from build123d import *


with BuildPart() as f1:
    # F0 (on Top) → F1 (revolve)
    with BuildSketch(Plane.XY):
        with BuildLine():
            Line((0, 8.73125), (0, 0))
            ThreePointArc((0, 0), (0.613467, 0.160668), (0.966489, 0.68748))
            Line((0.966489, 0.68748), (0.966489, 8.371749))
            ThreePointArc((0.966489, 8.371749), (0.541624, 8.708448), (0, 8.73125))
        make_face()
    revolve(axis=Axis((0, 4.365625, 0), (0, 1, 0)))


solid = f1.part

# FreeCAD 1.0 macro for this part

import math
import FreeCAD as App
import Part
import Sketcher
from FreeCAD import Vector
Q = App.Units.Quantity

doc = App.newDocument("Part")
body = doc.addObject("PartDesign::Body", "Body")

# Sketch on XY plane
sketch1 = doc.addObject("Sketcher::SketchObject", "Sketch")
body.addObject(sketch1)
sketch1.AttachmentSupport = (doc.XY_Plane, [""])
sketch1.MapMode = "FlatFace"
sketch1.addGeometry(Part.LineSegment(Vector(0, 8.73125, 0), Vector(0, 0, 0)), False)
sketch1.addGeometry(Part.ArcOfCircle(Part.Circle(Vector(0.094681, 0.89, 0), Vector(0, 0, 1), 0.895022), math.radians(-96.072453), math.radians(-13.077773)), False)
sketch1.addGeometry(Part.LineSegment(Vector(0.966489, 0.68748, 0), Vector(0.966489, 8.371749, 0)), False)
sketch1.addGeometry(Part.ArcOfCircle(Part.Circle(Vector(0.235708, 7.886019, 0), Vector(0, 0, 1), 0.877482), math.radians(33.610917), math.radians(105.582108)), False)
sketch1.addConstraint(Sketcher.Constraint("Coincident", 0, 2, 1, 1))
sketch1.addConstraint(Sketcher.Constraint("Coincident", 1, 2, 2, 1))
sketch1.addConstraint(Sketcher.Constraint("Coincident", 2, 2, 3, 1))
sketch1.addConstraint(Sketcher.Constraint("Coincident", 3, 2, 0, 1))
sketch1.addConstraint(Sketcher.Constraint("Vertical", 0))
sketch1.addConstraint(Sketcher.Constraint("Vertical", 2))
sketch1.addConstraint(Sketcher.Constraint("Coincident", 0, 2, -1, 1))
sketch1.addConstraint(Sketcher.Constraint("DistanceY", 0, 2, 0, 1, Q("0.34375 in")))
sketch1.addConstraint(Sketcher.Constraint("Radius", 1, Q("0.895022 mm")))
sketch1.addConstraint(Sketcher.Constraint("Radius", 3, Q("0.877482 mm")))
sketch1.addConstraint(Sketcher.Constraint("DistanceY", 2, 1, 2, 2, Q("7.684269 mm")))
sketch1.addConstraint(Sketcher.Constraint("DistanceY", -1, 1, 1, 3, Q("0.89 mm")))
sketch1.addConstraint(Sketcher.Constraint("DistanceY", 2, 2, 3, 2, Q("0.359501 mm")))
revolution = doc.addObject("PartDesign::Revolution", "Revolution")
body.addObject(revolution)
revolution.Profile = sketch1
revolution.ReferenceAxis = (sketch1, ["V_Axis"])
revolution.Angle = 360

doc.recompute()
